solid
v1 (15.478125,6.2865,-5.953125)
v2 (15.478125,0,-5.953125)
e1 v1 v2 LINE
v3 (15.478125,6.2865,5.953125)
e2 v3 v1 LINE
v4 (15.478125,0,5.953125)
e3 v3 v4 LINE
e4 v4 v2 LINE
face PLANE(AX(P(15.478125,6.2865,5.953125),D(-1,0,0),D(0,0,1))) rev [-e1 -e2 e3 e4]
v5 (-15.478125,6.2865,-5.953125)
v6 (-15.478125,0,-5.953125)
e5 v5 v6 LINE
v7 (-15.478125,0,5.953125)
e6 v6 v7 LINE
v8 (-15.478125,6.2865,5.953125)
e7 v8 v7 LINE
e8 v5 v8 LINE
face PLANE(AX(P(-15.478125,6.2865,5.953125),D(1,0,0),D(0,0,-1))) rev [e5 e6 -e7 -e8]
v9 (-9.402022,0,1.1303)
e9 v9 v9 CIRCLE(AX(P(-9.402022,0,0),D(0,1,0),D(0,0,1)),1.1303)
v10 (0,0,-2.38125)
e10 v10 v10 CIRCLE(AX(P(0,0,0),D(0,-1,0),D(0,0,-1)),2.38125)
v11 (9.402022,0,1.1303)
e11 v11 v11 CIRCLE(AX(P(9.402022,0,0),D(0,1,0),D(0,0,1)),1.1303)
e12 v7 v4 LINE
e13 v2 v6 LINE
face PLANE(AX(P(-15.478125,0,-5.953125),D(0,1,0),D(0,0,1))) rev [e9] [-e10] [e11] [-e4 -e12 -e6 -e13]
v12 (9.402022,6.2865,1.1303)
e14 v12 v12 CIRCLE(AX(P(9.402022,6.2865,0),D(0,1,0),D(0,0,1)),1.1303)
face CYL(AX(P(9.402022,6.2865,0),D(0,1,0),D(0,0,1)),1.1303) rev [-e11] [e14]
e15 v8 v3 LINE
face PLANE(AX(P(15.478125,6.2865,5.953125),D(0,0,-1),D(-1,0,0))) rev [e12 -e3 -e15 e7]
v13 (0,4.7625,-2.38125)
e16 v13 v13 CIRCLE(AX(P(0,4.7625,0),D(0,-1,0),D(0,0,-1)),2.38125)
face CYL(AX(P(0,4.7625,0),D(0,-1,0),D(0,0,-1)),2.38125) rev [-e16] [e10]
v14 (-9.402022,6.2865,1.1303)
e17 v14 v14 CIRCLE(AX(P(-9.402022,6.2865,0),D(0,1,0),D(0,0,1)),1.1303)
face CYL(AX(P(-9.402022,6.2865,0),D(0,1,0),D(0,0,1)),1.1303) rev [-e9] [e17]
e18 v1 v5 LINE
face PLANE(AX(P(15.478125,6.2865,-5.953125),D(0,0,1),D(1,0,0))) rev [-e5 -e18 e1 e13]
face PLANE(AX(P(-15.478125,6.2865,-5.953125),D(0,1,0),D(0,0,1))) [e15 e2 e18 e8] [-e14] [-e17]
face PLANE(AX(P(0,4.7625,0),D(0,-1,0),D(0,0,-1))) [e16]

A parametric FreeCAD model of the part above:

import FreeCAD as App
import Part
import Sketcher
from FreeCAD import Vector
Q = App.Units.Quantity

doc = App.newDocument("Part")
body = doc.addObject("PartDesign::Body", "Body")

# Sketch on XZ plane
sketch1 = body.newObject("Sketcher::SketchObject", "Sketch")
sketch1.AttachmentSupport = (doc.getObject("XZ_Plane"), [""])
sketch1.MapMode = "FlatFace"
sketch1.addGeometry([
    Part.LineSegment(Vector(-15, -6, 0), Vector(-15, 6, 0)),
    Part.LineSegment(Vector(-15, 6, 0), Vector(15, 6, 0)),
    Part.LineSegment(Vector(15, 6, 0), Vector(15, -6, 0)),
    Part.LineSegment(Vector(15, -6, 0), Vector(-15, -6, 0)),
], False)
sketch1.addConstraint([
    Sketcher.Constraint("Coincident", 0, 2, 1, 1),
    Sketcher.Constraint("Coincident", 1, 2, 2, 1),
    Sketcher.Constraint("Coincident", 2, 2, 3, 1),
    Sketcher.Constraint("Coincident", 3, 2, 0, 1),
    Sketcher.Constraint("Vertical", 0),
    Sketcher.Constraint("Horizontal", 1),
    Sketcher.Constraint("Vertical", 2),
    Sketcher.Constraint("Horizontal", 3),
    Sketcher.Constraint("Symmetric", 0, 2, 2, 2, -1, 1),
    Sketcher.Constraint("DistanceX", 1, 1, 1, 2, Q("1.21875 in")),
    Sketcher.Constraint("DistanceY", 0, 1, 0, 2, Q("0.46875 in")),
])
pad1 = body.newObject("PartDesign::Pad", "Pad")
pad1.Profile = sketch1
pad1.Length = Q("0.2475 in")
pad1.Reversed = True

# Sketch on XZ plane
sketch2 = body.newObject("Sketcher::SketchObject", "Sketch001")
sketch2.AttachmentSupport = (doc.getObject("XZ_Plane"), [""])
sketch2.MapMode = "FlatFace"
sketch2.addGeometry(Part.Circle(Vector(0, 0, 0), Vector(0, 0, 1), 2.4), False)
sketch2.addConstraint([
    Sketcher.Constraint("Coincident", 0, 3, -1, 1),
    Sketcher.Constraint("Diameter", 0, Q("0.1875 in")),
])
pocket1 = body.newObject("PartDesign::Pocket", "Pocket")
pocket1.Profile = sketch2
pocket1.Length = Q("0.1875 in")

# Sketch on XZ plane
sketch3 = body.newObject("Sketcher::SketchObject", "Sketch002")
sketch3.AttachmentSupport = (doc.getObject("XZ_Plane"), [""])
sketch3.MapMode = "FlatFace"
sketch3.AttachmentOffset = App.Placement(Vector(0, 0, -0.2475 * 25.4), App.Rotation())
sketch3.addGeometry([
    Part.Circle(Vector(-9.4, 0, 0), Vector(0, 0, 1), 1.1),
    Part.Circle(Vector(9.4, 0, 0), Vector(0, 0, 1), 1.1),
], False)
sketch3.addConstraint([
    Sketcher.Constraint("Equal", 0, 1),
    Sketcher.Constraint("Symmetric", 0, 3, 1, 3, -1, 1),
    Sketcher.Constraint("PointOnObject", 0, 3, -1),
    Sketcher.Constraint("Diameter", 0, Q("0.089 in")),
    Sketcher.Constraint("DistanceX", 0, 3, -1, 1, 9.402022),
])
doc.recompute()
hole = body.newObject("PartDesign::Hole", "Hole")
hole.Profile = sketch3
hole.ThreadType = "None"
hole.Diameter = Q("0.089 in")
hole.DepthType = "Dimension"
hole.Depth = Q("0.35 in")
hole.DrillPoint = "Angled"
hole.DrillPointAngle = 118
hole.Reversed = True

doc.recompute()
